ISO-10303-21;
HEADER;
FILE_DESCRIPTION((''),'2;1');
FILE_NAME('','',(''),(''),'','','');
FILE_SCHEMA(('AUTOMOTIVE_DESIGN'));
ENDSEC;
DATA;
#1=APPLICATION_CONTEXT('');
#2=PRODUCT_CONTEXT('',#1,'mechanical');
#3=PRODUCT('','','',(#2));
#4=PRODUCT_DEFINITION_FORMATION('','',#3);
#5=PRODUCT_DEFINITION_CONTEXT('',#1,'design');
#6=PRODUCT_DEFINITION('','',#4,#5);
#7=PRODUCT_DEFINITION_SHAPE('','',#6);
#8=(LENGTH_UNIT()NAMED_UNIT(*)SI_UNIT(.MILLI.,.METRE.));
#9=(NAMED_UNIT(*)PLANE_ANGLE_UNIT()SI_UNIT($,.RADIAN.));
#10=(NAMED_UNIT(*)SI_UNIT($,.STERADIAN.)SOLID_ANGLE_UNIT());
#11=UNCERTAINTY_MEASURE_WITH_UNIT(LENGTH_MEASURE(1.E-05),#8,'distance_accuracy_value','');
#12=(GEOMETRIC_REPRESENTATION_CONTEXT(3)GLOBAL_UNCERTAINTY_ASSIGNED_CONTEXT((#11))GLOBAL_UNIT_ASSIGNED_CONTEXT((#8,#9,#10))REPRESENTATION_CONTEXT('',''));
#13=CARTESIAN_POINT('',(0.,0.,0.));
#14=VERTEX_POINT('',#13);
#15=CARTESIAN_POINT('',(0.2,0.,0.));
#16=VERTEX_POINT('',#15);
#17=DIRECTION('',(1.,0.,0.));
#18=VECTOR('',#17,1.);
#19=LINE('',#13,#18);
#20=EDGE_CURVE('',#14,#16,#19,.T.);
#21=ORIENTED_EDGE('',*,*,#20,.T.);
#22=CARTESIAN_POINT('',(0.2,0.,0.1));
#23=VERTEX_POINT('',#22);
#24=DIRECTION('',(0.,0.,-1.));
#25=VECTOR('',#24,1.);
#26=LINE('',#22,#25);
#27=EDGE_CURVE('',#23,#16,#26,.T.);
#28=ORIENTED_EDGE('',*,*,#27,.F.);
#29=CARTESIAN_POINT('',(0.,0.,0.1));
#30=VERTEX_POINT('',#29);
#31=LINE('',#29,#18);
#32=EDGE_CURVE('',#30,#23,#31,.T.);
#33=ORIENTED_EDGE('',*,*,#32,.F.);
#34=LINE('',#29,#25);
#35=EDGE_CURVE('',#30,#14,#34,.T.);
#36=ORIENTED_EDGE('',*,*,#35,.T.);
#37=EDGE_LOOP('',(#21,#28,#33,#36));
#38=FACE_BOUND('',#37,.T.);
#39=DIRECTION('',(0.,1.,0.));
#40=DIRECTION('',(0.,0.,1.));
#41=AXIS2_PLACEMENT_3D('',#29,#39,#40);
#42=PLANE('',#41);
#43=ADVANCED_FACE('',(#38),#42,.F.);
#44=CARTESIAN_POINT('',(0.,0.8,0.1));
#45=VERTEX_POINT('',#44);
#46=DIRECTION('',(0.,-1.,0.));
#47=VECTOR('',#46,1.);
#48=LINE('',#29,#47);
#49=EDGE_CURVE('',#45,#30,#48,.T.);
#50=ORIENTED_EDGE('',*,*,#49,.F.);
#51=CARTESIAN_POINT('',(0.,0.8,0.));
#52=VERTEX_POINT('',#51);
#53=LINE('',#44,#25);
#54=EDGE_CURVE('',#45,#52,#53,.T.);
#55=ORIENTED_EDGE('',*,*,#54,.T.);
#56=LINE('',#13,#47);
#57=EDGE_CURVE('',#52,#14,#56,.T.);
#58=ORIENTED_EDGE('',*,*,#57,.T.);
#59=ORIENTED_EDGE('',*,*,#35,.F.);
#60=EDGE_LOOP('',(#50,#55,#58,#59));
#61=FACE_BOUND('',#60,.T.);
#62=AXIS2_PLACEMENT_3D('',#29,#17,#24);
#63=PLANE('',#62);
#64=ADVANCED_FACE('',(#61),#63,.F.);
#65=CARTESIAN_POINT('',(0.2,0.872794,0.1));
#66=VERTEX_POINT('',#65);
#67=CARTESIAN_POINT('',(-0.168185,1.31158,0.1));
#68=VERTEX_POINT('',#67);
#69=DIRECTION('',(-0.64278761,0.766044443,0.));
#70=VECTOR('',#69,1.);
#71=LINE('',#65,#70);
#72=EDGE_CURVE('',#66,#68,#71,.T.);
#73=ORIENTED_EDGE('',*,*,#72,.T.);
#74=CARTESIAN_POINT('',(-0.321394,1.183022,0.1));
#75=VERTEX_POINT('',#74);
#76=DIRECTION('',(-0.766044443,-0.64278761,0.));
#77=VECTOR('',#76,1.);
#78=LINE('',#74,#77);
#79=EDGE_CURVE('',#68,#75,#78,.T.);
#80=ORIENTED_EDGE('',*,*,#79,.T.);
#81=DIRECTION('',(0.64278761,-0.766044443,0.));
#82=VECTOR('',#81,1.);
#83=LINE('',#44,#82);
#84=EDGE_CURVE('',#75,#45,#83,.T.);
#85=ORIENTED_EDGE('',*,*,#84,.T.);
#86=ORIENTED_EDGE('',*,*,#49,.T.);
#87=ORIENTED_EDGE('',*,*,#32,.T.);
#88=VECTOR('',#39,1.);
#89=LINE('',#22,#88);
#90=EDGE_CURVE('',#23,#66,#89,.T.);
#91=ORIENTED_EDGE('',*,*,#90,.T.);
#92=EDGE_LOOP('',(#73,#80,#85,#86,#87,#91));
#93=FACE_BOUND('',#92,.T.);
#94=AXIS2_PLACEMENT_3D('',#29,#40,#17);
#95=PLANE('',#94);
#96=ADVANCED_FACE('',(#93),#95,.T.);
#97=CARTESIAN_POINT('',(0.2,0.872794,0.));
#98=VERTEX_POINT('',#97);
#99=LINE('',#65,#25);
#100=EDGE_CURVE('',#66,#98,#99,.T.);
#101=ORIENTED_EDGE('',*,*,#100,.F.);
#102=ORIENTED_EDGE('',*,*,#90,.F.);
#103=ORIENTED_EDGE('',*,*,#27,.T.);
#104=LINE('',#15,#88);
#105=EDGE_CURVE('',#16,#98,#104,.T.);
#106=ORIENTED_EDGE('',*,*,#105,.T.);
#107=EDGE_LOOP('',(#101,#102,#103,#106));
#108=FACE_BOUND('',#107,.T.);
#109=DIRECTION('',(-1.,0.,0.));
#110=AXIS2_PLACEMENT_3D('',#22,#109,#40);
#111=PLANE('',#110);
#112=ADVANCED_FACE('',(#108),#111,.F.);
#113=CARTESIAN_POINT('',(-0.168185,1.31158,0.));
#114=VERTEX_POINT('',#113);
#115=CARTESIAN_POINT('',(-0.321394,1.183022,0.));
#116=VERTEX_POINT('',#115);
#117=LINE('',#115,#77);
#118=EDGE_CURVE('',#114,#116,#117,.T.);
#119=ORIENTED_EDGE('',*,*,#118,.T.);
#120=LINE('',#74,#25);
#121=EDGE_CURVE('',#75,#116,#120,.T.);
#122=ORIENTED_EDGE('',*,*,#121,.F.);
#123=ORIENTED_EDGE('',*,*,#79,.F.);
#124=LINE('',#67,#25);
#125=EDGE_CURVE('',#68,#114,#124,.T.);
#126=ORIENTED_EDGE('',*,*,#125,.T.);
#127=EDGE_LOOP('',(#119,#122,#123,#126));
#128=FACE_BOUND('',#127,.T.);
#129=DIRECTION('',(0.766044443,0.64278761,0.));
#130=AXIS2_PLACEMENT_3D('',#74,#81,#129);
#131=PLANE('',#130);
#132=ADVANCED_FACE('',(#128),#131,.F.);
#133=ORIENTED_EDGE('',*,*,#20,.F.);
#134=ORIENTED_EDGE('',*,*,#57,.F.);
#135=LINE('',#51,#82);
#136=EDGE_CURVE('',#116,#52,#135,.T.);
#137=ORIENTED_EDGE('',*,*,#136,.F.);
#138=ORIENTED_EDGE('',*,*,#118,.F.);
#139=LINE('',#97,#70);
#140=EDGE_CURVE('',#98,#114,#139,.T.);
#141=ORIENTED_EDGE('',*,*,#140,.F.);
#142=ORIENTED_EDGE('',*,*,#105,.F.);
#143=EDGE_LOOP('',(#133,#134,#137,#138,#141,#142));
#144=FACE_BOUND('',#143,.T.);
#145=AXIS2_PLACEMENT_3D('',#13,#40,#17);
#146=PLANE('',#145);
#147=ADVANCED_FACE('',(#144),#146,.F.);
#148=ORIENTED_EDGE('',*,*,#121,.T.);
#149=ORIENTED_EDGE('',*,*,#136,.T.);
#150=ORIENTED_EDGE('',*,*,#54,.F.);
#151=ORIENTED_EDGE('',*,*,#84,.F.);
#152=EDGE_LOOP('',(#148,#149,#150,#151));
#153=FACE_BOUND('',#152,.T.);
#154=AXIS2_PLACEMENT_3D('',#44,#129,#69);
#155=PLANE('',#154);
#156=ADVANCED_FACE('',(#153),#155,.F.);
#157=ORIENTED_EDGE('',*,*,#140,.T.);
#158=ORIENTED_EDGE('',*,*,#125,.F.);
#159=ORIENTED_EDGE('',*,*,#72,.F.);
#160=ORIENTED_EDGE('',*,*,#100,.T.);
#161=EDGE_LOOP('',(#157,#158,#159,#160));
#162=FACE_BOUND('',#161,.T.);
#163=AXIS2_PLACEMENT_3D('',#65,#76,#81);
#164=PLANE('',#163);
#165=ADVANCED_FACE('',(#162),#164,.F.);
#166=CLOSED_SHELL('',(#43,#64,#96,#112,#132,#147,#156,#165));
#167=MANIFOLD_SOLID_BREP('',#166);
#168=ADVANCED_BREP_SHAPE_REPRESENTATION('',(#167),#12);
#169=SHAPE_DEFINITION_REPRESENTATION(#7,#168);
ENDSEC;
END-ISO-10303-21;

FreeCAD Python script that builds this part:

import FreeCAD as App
import Part
import Sketcher
from FreeCAD import Vector
Q = App.Units.Quantity

doc = App.newDocument("Part")
body = doc.addObject("PartDesign::Body", "Body")

sketch1 = doc.addObject("Sketcher::SketchObject", "Sketch")
body.addObject(sketch1)
sketch1.AttachmentSupport = (doc.XY_Plane, [""])
sketch1.MapMode = "FlatFace"
sketch1.addGeometry([
    Part.LineSegment(Vector(0, 0.8, 0), Vector(0, 0, 0)),
    Part.LineSegment(Vector(0, 0, 0), Vector(0.2, 0, 0)),
    Part.LineSegment(Vector(0.2, 0, 0), Vector(0.2, 0.87, 0)),
    Part.LineSegment(Vector(0.2, 0.87, 0), Vector(-0.17, 1.31, 0)),
    Part.LineSegment(Vector(-0.17, 1.31, 0), Vector(-0.32, 1.18, 0)),
    Part.LineSegment(Vector(-0.32, 1.18, 0), Vector(0, 0.8, 0)),
], False)
sketch1.addConstraint([
    Sketcher.Constraint("Coincident", 0, 2, 1, 1),
    Sketcher.Constraint("Coincident", 1, 2, 2, 1),
    Sketcher.Constraint("Coincident", 2, 2, 3, 1),
    Sketcher.Constraint("Coincident", 3, 2, 4, 1),
    Sketcher.Constraint("Coincident", 4, 2, 5, 1),
    Sketcher.Constraint("Coincident", 5, 2, 0, 1),
    Sketcher.Constraint("Vertical", 0),
    Sketcher.Constraint("Horizontal", 1),
    Sketcher.Constraint("Vertical", 2),
    Sketcher.Constraint("Coincident", 0, 2, -1, 1),
    Sketcher.Constraint("Perpendicular", 3, 4),
    Sketcher.Constraint("Perpendicular", 4, 5),
    Sketcher.Constraint("Angle", 3, Q("130 deg")),
    Sketcher.Constraint("DistanceX", 1, 1, 1, 2, Q("0.2 mm")),
    Sketcher.Constraint("DistanceY", 0, 2, 0, 1, Q("0.8 mm")),
    Sketcher.Constraint("Distance", 4, Q("0.2 mm")),
    Sketcher.Constraint("Distance", 5, Q("0.5 mm")),
])
pad1 = doc.addObject("PartDesign::Pad", "Pad")
body.addObject(pad1)
pad1.Profile = sketch1
pad1.Length = 0.1

doc.recompute()
